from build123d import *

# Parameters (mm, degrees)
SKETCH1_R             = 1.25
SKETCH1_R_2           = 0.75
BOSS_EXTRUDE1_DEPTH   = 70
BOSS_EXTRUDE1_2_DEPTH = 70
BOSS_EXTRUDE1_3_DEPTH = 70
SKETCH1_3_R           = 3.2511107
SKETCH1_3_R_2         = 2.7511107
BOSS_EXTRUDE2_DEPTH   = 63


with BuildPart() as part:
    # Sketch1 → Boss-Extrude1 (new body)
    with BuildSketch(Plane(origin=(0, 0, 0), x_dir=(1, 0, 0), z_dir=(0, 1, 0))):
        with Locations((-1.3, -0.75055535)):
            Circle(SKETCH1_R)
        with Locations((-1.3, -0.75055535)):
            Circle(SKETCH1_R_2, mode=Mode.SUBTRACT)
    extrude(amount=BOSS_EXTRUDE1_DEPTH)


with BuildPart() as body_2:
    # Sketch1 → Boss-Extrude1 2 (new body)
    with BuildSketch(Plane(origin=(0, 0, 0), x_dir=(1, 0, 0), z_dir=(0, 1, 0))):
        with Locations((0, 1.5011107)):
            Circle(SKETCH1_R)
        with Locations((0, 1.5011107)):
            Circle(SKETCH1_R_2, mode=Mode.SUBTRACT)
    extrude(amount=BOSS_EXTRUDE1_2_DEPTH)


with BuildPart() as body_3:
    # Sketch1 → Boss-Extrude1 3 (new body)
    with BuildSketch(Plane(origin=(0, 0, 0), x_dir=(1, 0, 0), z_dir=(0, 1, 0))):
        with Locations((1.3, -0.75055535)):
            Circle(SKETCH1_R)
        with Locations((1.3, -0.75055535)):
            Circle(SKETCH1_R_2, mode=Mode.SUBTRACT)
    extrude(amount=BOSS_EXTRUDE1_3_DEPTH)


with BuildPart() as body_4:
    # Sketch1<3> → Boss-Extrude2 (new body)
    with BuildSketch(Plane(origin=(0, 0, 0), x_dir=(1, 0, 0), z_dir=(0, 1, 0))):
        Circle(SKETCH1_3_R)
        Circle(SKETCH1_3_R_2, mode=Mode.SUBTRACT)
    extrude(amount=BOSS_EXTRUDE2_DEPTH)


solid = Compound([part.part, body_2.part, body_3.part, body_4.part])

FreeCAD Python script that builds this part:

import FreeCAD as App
import Part
import Sketcher

V = App.Vector
Q = App.Units.Quantity

doc = App.newDocument("Part")
body = doc.addObject("PartDesign::Body", "Body")

# Sketch on XZ plane
sketch1 = body.newObject("Sketcher::SketchObject", "Sketch")
sketch1.AttachmentSupport = (doc.getObject("XZ_Plane"), [""])
sketch1.MapMode = "FlatFace"
sketch1.addGeometry([
    Part.Circle(V(-1.3, 0.8, 0), V(0, 0, 1), 1.2),
    Part.Circle(V(-1.3, 0.8, 0), V(0, 0, 1), 0.8),
], False)
sketch1.addConstraint([
    Sketcher.Constraint("Coincident", 1, 3, 0, 3),
    Sketcher.Constraint("Diameter", 0, Q("2.5 mm")),
    Sketcher.Constraint("Diameter", 1, Q("1.5 mm")),
    Sketcher.Constraint("DistanceX", 0, 3, -1, 1, Q("1.3 mm")),
    Sketcher.Constraint("DistanceY", -1, 1, 0, 3, Q("0.750555 mm")),
])
pad1 = body.newObject("PartDesign::Pad", "Pad")
pad1.Profile = sketch1
pad1.Length = 70
pad1.Reversed = True
body2 = doc.addObject("PartDesign::Body", "Body001")

# Sketch on XZ plane
sketch2 = body2.newObject("Sketcher::SketchObject", "Sketch001")
sketch2.AttachmentSupport = (doc.getObject("XZ_Plane001"), [""])
sketch2.MapMode = "FlatFace"
sketch2.addGeometry([
    Part.Circle(V(0, -1.5, 0), V(0, 0, 1), 1.2),
    Part.Circle(V(0, -1.5, 0), V(0, 0, 1), 0.8),
], False)
sketch2.addConstraint([
    Sketcher.Constraint("Coincident", 1, 3, 0, 3),
    Sketcher.Constraint("PointOnObject", 0, 3, -2),
    Sketcher.Constraint("Diameter", 0, Q("2.5 mm")),
    Sketcher.Constraint("Diameter", 1, Q("1.5 mm")),
    Sketcher.Constraint("DistanceY", 0, 3, -1, 1, Q("1.501111 mm")),
])
pad2 = body2.newObject("PartDesign::Pad", "Pad001")
pad2.Profile = sketch2
pad2.Length = 70
pad2.Reversed = True
body3 = doc.addObject("PartDesign::Body", "Body002")

# Sketch on XZ plane
sketch3 = body3.newObject("Sketcher::SketchObject", "Sketch002")
sketch3.AttachmentSupport = (doc.getObject("XZ_Plane002"), [""])
sketch3.MapMode = "FlatFace"
sketch3.addGeometry([
    Part.Circle(V(1.3, 0.8, 0), V(0, 0, 1), 1.2),
    Part.Circle(V(1.3, 0.8, 0), V(0, 0, 1), 0.8),
], False)
sketch3.addConstraint([
    Sketcher.Constraint("Coincident", 1, 3, 0, 3),
    Sketcher.Constraint("Diameter", 0, Q("2.5 mm")),
    Sketcher.Constraint("Diameter", 1, Q("1.5 mm")),
    Sketcher.Constraint("DistanceX", -1, 1, 0, 3, Q("1.3 mm")),
    Sketcher.Constraint("DistanceY", -1, 1, 0, 3, Q("0.750555 mm")),
])
pad3 = body3.newObject("PartDesign::Pad", "Pad002")
pad3.Profile = sketch3
pad3.Length = 70
pad3.Reversed = True
body4 = doc.addObject("PartDesign::Body", "Body003")

# Sketch on XZ plane
sketch4 = body4.newObject("Sketcher::SketchObject", "Sketch003")
sketch4.AttachmentSupport = (doc.getObject("XZ_Plane003"), [""])
sketch4.MapMode = "FlatFace"
sketch4.addGeometry([
    Part.Circle(V(0, 0, 0), V(0, 0, 1), 3.3),
    Part.Circle(V(0, 0, 0), V(0, 0, 1), 2.8),
], False)
sketch4.addConstraint([
    Sketcher.Constraint("Coincident", 0, 3, -1, 1),
    Sketcher.Constraint("Coincident", 1, 3, -1, 1),
    Sketcher.Constraint("Diameter", 0, Q("6.502221 mm")),
    Sketcher.Constraint("Diameter", 1, Q("5.502221 mm")),
])
pad4 = body4.newObject("PartDesign::Pad", "Pad003")
pad4.Profile = sketch4
pad4.Length = 63
pad4.Reversed = True

doc.recompute()
